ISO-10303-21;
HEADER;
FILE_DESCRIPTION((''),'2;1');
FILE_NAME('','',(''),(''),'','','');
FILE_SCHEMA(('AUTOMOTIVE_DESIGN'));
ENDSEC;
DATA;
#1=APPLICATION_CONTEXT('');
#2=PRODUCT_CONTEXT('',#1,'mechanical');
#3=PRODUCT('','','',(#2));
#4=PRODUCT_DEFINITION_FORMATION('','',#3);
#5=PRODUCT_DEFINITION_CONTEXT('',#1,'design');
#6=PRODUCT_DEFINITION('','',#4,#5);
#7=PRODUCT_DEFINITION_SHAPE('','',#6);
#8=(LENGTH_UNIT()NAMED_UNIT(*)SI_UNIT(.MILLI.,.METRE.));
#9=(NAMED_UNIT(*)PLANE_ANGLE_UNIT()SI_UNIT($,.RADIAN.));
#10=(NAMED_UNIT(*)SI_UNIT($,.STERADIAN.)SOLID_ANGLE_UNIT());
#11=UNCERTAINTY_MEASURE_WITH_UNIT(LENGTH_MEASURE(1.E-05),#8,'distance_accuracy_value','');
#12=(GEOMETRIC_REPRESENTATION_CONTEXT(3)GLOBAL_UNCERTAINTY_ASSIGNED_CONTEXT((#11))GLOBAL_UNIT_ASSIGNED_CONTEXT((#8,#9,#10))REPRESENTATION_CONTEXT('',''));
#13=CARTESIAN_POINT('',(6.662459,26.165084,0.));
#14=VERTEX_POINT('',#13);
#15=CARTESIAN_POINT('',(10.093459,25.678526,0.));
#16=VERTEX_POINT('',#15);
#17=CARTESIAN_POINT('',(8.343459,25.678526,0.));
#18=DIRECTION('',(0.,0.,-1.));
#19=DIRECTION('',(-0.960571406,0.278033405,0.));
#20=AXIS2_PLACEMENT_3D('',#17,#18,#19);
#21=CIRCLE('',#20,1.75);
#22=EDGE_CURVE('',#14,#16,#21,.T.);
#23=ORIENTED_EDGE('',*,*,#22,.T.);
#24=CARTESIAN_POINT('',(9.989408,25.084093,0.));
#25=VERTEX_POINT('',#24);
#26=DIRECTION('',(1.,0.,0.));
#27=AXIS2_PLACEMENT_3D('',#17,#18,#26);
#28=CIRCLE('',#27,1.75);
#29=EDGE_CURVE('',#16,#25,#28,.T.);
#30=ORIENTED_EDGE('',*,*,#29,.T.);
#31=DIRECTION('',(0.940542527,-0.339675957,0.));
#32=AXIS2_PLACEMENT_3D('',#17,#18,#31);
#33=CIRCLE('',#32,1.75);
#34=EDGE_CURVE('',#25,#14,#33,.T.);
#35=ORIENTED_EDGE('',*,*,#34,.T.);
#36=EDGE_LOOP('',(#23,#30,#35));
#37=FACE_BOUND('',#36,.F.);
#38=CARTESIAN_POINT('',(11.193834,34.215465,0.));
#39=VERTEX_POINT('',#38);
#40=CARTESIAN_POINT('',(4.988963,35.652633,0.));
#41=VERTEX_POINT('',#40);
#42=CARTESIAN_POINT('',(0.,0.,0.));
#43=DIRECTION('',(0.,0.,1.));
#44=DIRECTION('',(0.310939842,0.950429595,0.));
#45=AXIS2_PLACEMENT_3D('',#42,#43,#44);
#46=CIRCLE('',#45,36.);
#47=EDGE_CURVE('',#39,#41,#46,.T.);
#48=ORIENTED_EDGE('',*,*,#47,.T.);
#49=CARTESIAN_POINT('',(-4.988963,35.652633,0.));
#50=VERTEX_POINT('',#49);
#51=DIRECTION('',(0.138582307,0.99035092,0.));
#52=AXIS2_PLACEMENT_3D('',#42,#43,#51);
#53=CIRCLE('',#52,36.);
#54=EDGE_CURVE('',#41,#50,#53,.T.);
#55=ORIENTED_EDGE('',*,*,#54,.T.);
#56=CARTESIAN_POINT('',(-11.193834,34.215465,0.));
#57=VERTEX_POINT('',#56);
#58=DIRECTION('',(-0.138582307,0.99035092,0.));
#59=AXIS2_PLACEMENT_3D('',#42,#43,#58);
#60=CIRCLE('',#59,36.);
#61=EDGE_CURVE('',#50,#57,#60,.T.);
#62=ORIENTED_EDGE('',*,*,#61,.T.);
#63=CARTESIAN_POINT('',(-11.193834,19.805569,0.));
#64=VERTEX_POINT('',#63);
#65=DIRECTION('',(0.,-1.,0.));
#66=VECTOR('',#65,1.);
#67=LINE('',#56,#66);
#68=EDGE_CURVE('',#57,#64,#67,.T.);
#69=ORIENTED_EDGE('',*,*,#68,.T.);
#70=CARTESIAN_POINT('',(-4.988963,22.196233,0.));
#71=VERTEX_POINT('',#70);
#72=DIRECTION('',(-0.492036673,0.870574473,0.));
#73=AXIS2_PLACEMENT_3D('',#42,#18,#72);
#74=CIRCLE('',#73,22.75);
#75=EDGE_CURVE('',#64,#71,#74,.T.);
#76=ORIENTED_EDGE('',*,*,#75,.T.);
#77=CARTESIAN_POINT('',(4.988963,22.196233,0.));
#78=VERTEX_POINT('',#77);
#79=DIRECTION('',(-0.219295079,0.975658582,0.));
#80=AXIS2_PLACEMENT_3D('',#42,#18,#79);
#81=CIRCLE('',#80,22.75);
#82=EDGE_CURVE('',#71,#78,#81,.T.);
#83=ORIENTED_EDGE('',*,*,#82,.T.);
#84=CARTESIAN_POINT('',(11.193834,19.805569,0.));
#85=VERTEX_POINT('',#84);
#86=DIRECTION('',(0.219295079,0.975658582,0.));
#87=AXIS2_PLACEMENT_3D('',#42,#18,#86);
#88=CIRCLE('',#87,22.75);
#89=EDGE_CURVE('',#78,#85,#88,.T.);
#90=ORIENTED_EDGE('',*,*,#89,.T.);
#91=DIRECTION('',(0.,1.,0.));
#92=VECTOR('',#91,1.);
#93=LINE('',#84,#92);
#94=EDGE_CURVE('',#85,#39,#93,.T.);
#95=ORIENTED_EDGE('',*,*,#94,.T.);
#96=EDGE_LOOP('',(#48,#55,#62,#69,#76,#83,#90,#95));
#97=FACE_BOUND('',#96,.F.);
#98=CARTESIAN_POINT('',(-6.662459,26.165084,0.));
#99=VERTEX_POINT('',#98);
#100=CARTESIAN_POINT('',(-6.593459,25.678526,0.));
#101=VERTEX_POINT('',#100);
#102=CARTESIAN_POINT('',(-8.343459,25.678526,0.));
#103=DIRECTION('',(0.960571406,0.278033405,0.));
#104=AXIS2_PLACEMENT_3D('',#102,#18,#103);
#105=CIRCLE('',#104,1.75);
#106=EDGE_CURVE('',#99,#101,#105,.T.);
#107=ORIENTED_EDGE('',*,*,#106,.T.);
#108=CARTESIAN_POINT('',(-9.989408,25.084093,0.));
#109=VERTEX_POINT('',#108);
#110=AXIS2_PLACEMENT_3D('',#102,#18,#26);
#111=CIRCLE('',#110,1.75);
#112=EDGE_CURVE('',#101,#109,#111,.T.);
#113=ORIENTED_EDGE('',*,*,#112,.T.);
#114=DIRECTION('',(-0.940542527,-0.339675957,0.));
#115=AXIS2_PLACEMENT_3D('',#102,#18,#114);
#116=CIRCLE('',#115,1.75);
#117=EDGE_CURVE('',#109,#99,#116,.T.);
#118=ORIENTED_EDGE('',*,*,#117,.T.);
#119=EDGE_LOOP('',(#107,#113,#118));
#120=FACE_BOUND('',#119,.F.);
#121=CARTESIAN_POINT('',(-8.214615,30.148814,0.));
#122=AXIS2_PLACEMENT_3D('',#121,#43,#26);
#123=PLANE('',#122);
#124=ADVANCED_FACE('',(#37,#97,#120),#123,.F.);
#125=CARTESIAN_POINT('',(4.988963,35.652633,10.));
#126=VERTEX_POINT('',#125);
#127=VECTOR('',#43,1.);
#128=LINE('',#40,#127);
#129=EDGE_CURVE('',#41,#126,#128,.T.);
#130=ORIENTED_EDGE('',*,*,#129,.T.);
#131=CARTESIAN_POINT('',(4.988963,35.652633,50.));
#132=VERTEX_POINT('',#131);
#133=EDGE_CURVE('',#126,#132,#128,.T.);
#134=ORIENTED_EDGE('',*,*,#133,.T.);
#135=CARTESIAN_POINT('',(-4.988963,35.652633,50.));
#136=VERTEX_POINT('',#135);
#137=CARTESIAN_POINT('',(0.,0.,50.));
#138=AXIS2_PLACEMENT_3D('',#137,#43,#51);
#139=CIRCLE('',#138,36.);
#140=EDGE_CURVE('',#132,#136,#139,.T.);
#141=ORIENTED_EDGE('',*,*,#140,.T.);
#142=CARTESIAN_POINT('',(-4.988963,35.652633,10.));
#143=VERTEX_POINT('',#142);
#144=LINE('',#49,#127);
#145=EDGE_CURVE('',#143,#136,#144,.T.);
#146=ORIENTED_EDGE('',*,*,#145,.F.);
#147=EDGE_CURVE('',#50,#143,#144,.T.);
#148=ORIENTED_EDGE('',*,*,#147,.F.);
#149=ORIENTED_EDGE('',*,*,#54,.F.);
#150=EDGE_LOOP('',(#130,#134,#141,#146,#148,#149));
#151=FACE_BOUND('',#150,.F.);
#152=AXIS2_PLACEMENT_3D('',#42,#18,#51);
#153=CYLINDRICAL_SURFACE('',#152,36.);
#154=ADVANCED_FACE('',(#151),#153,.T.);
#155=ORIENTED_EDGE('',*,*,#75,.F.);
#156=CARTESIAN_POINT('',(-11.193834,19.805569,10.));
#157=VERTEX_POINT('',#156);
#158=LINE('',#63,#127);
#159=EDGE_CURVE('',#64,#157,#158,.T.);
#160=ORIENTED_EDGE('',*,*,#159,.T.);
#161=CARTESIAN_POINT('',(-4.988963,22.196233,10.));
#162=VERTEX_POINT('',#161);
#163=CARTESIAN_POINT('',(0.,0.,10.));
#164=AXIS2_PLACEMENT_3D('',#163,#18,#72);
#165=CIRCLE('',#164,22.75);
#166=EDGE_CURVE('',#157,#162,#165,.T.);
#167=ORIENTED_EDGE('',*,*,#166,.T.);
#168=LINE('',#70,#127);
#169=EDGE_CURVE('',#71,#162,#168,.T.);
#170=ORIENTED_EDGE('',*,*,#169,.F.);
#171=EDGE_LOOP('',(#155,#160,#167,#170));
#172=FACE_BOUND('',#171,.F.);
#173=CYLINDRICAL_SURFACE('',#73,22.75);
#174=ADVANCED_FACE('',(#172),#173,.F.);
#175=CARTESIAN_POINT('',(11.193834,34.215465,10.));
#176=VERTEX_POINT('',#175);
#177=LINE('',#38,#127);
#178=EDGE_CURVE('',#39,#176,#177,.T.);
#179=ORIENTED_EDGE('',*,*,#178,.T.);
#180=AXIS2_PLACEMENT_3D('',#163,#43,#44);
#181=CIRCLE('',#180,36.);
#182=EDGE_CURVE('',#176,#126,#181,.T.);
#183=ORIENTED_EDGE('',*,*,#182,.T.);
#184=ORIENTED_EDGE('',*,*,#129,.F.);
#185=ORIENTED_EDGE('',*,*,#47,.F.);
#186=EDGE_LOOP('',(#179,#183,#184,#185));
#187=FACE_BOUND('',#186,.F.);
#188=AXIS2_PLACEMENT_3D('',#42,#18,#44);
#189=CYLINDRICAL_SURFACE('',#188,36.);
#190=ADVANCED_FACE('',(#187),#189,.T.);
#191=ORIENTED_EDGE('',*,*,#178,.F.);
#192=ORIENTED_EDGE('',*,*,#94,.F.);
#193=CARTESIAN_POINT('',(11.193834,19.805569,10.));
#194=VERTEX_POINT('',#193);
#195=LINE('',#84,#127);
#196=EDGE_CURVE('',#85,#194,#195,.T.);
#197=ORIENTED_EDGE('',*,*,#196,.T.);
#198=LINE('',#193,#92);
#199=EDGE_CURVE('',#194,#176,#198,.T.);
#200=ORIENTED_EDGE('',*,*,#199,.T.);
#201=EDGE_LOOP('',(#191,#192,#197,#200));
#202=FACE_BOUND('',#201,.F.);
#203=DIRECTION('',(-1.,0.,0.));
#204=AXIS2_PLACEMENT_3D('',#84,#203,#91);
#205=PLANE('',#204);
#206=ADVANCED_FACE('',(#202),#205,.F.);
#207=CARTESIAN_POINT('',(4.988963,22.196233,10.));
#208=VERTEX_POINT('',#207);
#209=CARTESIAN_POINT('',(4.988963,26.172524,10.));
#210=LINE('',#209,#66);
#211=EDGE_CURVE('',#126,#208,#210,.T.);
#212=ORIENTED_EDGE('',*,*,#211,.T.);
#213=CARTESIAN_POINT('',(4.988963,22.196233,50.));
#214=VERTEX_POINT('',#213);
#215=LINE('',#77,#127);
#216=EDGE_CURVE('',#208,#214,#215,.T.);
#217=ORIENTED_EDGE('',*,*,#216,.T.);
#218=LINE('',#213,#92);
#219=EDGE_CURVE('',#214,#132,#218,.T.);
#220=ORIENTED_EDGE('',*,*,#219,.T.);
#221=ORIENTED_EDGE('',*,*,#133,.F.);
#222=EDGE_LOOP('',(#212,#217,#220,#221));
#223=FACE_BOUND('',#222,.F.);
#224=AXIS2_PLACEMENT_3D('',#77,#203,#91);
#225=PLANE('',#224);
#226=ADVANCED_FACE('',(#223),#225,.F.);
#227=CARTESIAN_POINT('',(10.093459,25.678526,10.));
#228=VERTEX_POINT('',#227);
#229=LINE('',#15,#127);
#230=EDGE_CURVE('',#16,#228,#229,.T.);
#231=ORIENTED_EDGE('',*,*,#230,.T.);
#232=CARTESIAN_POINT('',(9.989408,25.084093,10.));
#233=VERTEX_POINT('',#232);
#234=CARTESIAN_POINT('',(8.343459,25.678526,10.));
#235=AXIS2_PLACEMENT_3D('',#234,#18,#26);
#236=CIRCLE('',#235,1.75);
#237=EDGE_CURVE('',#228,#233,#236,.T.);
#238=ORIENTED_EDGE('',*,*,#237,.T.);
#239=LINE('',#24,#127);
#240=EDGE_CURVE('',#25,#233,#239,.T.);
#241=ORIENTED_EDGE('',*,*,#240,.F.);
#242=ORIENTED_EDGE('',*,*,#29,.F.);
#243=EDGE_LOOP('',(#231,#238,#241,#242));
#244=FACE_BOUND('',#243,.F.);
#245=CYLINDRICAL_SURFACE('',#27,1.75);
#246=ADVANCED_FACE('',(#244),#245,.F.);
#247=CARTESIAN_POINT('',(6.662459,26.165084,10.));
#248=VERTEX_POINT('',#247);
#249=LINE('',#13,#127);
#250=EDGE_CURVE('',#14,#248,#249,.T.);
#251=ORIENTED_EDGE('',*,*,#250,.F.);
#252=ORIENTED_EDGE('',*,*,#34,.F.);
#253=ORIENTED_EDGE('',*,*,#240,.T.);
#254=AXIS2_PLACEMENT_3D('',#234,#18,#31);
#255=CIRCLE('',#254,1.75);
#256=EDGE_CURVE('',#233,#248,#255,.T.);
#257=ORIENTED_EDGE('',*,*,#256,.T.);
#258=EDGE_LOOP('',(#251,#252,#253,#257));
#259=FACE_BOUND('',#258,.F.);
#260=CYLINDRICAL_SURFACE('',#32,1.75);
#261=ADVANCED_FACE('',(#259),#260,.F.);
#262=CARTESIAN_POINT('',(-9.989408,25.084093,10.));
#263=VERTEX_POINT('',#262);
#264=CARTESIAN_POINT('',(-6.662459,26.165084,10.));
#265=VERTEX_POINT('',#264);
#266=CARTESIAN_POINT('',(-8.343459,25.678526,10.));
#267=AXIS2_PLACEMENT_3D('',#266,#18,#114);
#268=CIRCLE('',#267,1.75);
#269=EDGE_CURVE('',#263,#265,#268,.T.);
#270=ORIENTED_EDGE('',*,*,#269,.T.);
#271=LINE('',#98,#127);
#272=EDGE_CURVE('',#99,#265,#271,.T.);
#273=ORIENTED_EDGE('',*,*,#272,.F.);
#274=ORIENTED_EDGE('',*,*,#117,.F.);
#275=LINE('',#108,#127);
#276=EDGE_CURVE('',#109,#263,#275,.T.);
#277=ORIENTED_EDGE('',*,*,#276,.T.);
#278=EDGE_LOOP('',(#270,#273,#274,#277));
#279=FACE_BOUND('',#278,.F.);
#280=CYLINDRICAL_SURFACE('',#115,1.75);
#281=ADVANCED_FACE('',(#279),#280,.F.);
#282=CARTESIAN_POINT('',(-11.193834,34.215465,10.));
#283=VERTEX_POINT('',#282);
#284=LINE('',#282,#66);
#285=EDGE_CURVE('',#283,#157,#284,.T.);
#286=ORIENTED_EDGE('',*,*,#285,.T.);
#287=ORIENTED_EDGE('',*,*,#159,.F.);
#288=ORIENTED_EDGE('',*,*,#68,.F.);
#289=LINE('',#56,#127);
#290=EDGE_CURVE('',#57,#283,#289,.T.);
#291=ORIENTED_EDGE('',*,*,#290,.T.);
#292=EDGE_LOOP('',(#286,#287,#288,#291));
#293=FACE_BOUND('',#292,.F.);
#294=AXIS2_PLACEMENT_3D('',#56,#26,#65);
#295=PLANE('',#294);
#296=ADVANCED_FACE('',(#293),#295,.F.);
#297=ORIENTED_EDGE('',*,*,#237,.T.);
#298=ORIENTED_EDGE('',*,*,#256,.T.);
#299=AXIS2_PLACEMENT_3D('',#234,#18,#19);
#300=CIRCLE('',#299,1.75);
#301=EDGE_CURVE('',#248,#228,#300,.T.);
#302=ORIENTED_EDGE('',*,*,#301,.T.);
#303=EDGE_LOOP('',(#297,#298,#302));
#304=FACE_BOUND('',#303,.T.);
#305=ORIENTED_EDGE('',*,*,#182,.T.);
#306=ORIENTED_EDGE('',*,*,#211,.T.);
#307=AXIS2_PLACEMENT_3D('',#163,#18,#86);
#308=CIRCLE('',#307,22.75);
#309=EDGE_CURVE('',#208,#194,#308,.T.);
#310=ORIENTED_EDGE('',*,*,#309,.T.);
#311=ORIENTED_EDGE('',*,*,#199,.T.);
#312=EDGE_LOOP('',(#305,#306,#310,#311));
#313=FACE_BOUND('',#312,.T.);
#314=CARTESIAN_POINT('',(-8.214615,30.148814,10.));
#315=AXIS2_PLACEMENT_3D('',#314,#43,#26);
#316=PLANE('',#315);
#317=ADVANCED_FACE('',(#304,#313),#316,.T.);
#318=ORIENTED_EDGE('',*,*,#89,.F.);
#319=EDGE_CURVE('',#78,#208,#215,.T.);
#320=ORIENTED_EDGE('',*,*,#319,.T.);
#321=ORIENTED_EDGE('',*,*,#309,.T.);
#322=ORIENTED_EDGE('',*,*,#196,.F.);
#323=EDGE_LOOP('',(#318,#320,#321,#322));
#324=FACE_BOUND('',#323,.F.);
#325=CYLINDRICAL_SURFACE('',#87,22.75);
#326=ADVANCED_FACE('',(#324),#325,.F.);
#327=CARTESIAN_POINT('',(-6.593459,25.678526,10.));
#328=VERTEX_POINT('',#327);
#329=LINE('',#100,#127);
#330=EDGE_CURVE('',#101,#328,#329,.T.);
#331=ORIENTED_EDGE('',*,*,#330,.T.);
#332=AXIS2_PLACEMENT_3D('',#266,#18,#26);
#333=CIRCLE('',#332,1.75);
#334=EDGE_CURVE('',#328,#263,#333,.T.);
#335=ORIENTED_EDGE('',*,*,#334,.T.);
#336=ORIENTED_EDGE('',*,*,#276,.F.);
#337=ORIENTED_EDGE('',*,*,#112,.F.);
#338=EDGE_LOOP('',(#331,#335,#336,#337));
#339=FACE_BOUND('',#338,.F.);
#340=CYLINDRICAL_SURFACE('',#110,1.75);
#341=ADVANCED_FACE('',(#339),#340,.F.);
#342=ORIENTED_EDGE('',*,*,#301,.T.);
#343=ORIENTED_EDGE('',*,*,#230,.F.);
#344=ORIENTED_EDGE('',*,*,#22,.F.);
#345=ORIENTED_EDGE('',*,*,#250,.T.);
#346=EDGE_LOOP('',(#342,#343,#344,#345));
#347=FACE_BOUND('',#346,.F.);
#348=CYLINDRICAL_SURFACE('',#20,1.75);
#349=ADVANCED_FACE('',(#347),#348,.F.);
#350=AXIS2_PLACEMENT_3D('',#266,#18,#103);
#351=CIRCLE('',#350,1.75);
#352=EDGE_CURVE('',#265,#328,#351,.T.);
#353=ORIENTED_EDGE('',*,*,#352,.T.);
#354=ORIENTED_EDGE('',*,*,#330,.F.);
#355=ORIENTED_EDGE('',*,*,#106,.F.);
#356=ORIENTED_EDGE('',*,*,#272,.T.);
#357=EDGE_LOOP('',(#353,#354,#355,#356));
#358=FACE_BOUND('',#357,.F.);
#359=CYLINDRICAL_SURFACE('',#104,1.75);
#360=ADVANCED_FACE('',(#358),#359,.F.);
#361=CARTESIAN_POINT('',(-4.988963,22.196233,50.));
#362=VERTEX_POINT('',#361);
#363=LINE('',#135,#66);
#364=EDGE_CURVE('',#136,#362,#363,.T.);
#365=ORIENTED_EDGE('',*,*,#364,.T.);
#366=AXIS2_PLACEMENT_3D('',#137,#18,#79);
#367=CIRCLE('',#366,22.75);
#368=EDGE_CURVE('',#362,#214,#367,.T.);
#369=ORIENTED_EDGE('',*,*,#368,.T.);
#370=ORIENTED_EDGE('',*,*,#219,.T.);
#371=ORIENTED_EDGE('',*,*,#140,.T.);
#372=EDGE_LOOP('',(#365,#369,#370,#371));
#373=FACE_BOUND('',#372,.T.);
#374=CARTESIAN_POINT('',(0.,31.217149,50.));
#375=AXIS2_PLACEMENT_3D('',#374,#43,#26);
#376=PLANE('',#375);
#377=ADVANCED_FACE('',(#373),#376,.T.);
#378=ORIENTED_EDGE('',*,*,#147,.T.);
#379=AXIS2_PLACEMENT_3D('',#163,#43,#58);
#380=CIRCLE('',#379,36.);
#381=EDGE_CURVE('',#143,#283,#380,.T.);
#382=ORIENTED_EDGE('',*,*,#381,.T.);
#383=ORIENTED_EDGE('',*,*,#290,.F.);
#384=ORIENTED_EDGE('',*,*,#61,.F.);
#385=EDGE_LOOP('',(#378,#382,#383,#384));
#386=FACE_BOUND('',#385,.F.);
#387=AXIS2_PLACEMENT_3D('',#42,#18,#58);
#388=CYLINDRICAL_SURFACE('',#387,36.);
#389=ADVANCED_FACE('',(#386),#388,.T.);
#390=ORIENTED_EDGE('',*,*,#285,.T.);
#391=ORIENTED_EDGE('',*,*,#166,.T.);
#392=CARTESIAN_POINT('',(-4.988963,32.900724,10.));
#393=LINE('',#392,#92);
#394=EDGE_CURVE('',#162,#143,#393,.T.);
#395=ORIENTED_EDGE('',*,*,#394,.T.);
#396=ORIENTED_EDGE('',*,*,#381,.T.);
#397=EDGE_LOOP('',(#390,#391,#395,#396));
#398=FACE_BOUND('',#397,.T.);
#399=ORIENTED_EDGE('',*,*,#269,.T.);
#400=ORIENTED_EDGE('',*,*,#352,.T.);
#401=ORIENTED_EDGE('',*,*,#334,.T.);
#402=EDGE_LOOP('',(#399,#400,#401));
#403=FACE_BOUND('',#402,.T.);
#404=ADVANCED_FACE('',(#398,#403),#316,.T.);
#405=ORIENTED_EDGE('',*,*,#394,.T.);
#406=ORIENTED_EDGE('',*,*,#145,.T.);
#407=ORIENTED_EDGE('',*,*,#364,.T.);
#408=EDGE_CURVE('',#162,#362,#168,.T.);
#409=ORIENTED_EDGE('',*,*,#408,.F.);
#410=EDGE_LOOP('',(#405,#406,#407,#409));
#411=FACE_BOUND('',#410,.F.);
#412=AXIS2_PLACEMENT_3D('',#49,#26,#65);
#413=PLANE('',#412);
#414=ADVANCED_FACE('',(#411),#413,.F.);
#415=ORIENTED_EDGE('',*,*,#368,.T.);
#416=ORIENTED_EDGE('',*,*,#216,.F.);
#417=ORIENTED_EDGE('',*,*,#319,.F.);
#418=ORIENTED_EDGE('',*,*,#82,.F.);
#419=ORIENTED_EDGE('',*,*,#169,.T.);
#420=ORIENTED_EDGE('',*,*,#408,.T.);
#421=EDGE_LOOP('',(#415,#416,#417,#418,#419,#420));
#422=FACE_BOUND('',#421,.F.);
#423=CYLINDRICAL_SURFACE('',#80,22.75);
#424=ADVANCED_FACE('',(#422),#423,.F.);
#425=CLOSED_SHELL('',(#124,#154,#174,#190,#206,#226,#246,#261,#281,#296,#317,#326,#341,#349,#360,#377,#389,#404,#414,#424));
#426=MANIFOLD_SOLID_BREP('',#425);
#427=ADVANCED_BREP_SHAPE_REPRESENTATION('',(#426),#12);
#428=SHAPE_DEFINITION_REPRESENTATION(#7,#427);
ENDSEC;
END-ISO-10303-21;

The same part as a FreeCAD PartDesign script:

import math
import FreeCAD as App
import Part
import Sketcher

V = App.Vector
Q = App.Units.Quantity

doc = App.newDocument("Part")
params = doc.addObject("Spreadsheet::Sheet", "Params")
for row, (alias, value) in enumerate([
    ("sketch1_radius", "36 mm"),
    ("sketch1_radius2", "22.75 mm"),
    ("sketch1_radius3", "1.75 mm"),
    ("pad1_length", "10 mm"),
    ("sketch2_radius", "36 mm"),
    ("sketch2_radius2", "22.75 mm"),
    ("pad2_length", "50 mm"),
], start=1):
    params.set(f"A{row}", alias)
    params.set(f"B{row}", "=" + value)
    params.setAlias(f"B{row}", alias)

body = doc.addObject("PartDesign::Body", "Body")

# Sketch on XY plane
sketch1 = body.newObject("Sketcher::SketchObject", "Sketch")
sketch1.AttachmentSupport = (doc.getObject("XY_Plane"), [""])
sketch1.MapMode = "FlatFace"
sketch1.addGeometry([
    Part.LineSegment(V(-11.19, 34.22, 0), V(-11.19, 19.81, 0)),  # 0
    Part.ArcOfCircle(Part.Circle(V(0, 0, 0), V(0, 0, 1), 22.75), math.radians(102.67), math.radians(119.47)),  # 1
    Part.ArcOfCircle(Part.Circle(V(0, 0, 0), V(0, 0, 1), 22.75), math.radians(77), math.radians(103)),  # 2
    Part.ArcOfCircle(Part.Circle(V(0, 0, 0), V(0, 0, 1), 22.75), math.radians(60.53), math.radians(77.33)),  # 3
    Part.LineSegment(V(11.19, 19.81, 0), V(11.19, 34.22, 0)),  # 4
    Part.ArcOfCircle(Part.Circle(V(0, 0, 0), V(0, 0, 1), 36), math.radians(71.88), math.radians(82.03)),  # 5
    Part.ArcOfCircle(Part.Circle(V(0, 0, 0), V(0, 0, 1), 36), math.radians(82.03), math.radians(97.97)),  # 6
    Part.ArcOfCircle(Part.Circle(V(0, 0, 0), V(0, 0, 1), 36), math.radians(97.97), math.radians(108.12)),  # 7
    Part.ArcOfCircle(Part.Circle(V(-8.34, 25.68, 0), V(0, 0, 1), 1.75), math.radians(16), math.radians(200)),  # 8
    Part.ArcOfCircle(Part.Circle(V(-8.34, 25.68, 0), V(0, 0, 1), 1.75), math.radians(0), math.radians(16.14)),  # 9
    Part.ArcOfCircle(Part.Circle(V(-8.34, 25.68, 0), V(0, 0, 1), 1.75), math.radians(-160), math.radians(0)),  # 10
    Part.ArcOfCircle(Part.Circle(V(8.34, 25.68, 0), V(0, 0, 1), 1.75), math.radians(0), math.radians(164)),  # 11
    Part.ArcOfCircle(Part.Circle(V(8.34, 25.68, 0), V(0, 0, 1), 1.75), math.radians(-19.86), math.radians(0)),  # 12
    Part.ArcOfCircle(Part.Circle(V(8.34, 25.68, 0), V(0, 0, 1), 1.75), math.radians(164), math.radians(340)),  # 13
], False)
sketch1.addConstraint([
    Sketcher.Constraint("Coincident", 0, 2, 1, 2),
    Sketcher.Constraint("Tangent", 1, 1, 2, 2),
    Sketcher.Constraint("Tangent", 2, 1, 3, 2),
    Sketcher.Constraint("Coincident", 3, 1, 4, 1),
    Sketcher.Constraint("Coincident", 4, 2, 5, 1),
    Sketcher.Constraint("Tangent", 5, 2, 6, 1),
    Sketcher.Constraint("Tangent", 6, 2, 7, 1),
    Sketcher.Constraint("Coincident", 7, 2, 0, 1),
    Sketcher.Constraint("Tangent", 8, 1, 9, 2),
    Sketcher.Constraint("Tangent", 9, 1, 10, 2),
    Sketcher.Constraint("Tangent", 10, 1, 8, 2),
    Sketcher.Constraint("Tangent", 11, 1, 12, 2),
    Sketcher.Constraint("Tangent", 12, 1, 13, 2),
    Sketcher.Constraint("Tangent", 13, 1, 11, 2),
    Sketcher.Constraint("Vertical", 0),
    Sketcher.Constraint("Vertical", 4),
    Sketcher.Constraint("Coincident", 1, 3, -1, 1),
    Sketcher.Constraint("Coincident", 3, 3, -1, 1),
    Sketcher.Constraint("Coincident", 5, 3, -1, 1),
    Sketcher.Constraint("Coincident", 7, 3, -1, 1),
    Sketcher.Constraint("Equal", 10, 11),
    Sketcher.Constraint("Symmetric", 8, 3, 11, 3, -2),
    Sketcher.Constraint("Horizontal", 1, 1, 2, 1),
    Sketcher.Constraint("Horizontal", 0, 2, 3, 1),
    Sketcher.Constraint("Horizontal", 5, 2, 6, 2),
    Sketcher.Constraint("Horizontal", 13, 3, 9, 1),
    Sketcher.Constraint("Horizontal", 9, 1, 11, 1),
    Sketcher.Constraint("Horizontal", 10, 1, 12, 1),
    Sketcher.Constraint("Horizontal", 8, 1, 13, 1),
    Sketcher.Constraint("Vertical", 2, 1, 5, 2),
    Sketcher.Constraint("Radius", 5, Q("36 mm")),
    Sketcher.Constraint("Radius", 1, Q("22.75 mm")),
    Sketcher.Constraint("Radius", 8, Q("1.75 mm")),
    Sketcher.Constraint("DistanceX", 8, 3, 8, 1, Q("1.681 mm")),
    Sketcher.Constraint("DistanceY", 2, 1, 5, 2, Q("13.4564 mm")),
    Sketcher.Constraint("DistanceY", 0, 2, 0, 1, Q("14.409896 mm")),
    Sketcher.Constraint("DistanceX", 8, 3, -1, 1, Q("8.343459 mm")),
    Sketcher.Constraint("DistanceX", 10, 1, -1, 1, Q("9.989408 mm")),
    Sketcher.Constraint("DistanceY", 12, 3, 4, 2, Q("8.536939 mm")),
])
sketch1.setExpression("Constraints[30]", "Params.sketch1_radius")
sketch1.setExpression("Constraints[31]", "Params.sketch1_radius2")
sketch1.setExpression("Constraints[32]", "Params.sketch1_radius3")
pad1 = body.newObject("PartDesign::Pad", "Pad")
pad1.Profile = sketch1
pad1.setExpression("Length", "Params.pad1_length")

# Sketch on XY plane
sketch2 = body.newObject("Sketcher::SketchObject", "Sketch001")
sketch2.AttachmentSupport = (doc.getObject("XY_Plane"), [""])
sketch2.MapMode = "FlatFace"
sketch2.addGeometry([
    Part.ArcOfCircle(Part.Circle(V(0, 0, 0), V(0, 0, 1), 36), math.radians(82.03), math.radians(97.97)),
    Part.LineSegment(V(-5, 36, 0), V(-5, 22, 0)),
    Part.ArcOfCircle(Part.Circle(V(0, 0, 0), V(0, 0, 1), 23), math.radians(77), math.radians(103)),
    Part.LineSegment(V(5, 22, 0), V(5, 36, 0)),
], False)
sketch2.addConstraint([
    Sketcher.Constraint("Coincident", 0, 2, 1, 1),
    Sketcher.Constraint("Coincident", 1, 2, 2, 2),
    Sketcher.Constraint("Coincident", 2, 1, 3, 1),
    Sketcher.Constraint("Coincident", 3, 2, 0, 1),
    Sketcher.Constraint("Vertical", 1),
    Sketcher.Constraint("Vertical", 3),
    Sketcher.Constraint("Coincident", 0, 3, -1, 1),
    Sketcher.Constraint("Coincident", 2, 3, -1, 1),
    Sketcher.Constraint("Horizontal", 1, 2, 2, 1),
    Sketcher.Constraint("Radius", 0, Q("36 mm")),
    Sketcher.Constraint("Radius", 2, Q("22.75 mm")),
    Sketcher.Constraint("DistanceY", 1, 2, 1, 1, Q("13.4564 mm")),
])
sketch2.setExpression("Constraints[9]", "Params.sketch2_radius")
sketch2.setExpression("Constraints[10]", "Params.sketch2_radius2")
pad2 = body.newObject("PartDesign::Pad", "Pad001")
pad2.Profile = sketch2
pad2.setExpression("Length", "Params.pad2_length")

doc.recompute()
